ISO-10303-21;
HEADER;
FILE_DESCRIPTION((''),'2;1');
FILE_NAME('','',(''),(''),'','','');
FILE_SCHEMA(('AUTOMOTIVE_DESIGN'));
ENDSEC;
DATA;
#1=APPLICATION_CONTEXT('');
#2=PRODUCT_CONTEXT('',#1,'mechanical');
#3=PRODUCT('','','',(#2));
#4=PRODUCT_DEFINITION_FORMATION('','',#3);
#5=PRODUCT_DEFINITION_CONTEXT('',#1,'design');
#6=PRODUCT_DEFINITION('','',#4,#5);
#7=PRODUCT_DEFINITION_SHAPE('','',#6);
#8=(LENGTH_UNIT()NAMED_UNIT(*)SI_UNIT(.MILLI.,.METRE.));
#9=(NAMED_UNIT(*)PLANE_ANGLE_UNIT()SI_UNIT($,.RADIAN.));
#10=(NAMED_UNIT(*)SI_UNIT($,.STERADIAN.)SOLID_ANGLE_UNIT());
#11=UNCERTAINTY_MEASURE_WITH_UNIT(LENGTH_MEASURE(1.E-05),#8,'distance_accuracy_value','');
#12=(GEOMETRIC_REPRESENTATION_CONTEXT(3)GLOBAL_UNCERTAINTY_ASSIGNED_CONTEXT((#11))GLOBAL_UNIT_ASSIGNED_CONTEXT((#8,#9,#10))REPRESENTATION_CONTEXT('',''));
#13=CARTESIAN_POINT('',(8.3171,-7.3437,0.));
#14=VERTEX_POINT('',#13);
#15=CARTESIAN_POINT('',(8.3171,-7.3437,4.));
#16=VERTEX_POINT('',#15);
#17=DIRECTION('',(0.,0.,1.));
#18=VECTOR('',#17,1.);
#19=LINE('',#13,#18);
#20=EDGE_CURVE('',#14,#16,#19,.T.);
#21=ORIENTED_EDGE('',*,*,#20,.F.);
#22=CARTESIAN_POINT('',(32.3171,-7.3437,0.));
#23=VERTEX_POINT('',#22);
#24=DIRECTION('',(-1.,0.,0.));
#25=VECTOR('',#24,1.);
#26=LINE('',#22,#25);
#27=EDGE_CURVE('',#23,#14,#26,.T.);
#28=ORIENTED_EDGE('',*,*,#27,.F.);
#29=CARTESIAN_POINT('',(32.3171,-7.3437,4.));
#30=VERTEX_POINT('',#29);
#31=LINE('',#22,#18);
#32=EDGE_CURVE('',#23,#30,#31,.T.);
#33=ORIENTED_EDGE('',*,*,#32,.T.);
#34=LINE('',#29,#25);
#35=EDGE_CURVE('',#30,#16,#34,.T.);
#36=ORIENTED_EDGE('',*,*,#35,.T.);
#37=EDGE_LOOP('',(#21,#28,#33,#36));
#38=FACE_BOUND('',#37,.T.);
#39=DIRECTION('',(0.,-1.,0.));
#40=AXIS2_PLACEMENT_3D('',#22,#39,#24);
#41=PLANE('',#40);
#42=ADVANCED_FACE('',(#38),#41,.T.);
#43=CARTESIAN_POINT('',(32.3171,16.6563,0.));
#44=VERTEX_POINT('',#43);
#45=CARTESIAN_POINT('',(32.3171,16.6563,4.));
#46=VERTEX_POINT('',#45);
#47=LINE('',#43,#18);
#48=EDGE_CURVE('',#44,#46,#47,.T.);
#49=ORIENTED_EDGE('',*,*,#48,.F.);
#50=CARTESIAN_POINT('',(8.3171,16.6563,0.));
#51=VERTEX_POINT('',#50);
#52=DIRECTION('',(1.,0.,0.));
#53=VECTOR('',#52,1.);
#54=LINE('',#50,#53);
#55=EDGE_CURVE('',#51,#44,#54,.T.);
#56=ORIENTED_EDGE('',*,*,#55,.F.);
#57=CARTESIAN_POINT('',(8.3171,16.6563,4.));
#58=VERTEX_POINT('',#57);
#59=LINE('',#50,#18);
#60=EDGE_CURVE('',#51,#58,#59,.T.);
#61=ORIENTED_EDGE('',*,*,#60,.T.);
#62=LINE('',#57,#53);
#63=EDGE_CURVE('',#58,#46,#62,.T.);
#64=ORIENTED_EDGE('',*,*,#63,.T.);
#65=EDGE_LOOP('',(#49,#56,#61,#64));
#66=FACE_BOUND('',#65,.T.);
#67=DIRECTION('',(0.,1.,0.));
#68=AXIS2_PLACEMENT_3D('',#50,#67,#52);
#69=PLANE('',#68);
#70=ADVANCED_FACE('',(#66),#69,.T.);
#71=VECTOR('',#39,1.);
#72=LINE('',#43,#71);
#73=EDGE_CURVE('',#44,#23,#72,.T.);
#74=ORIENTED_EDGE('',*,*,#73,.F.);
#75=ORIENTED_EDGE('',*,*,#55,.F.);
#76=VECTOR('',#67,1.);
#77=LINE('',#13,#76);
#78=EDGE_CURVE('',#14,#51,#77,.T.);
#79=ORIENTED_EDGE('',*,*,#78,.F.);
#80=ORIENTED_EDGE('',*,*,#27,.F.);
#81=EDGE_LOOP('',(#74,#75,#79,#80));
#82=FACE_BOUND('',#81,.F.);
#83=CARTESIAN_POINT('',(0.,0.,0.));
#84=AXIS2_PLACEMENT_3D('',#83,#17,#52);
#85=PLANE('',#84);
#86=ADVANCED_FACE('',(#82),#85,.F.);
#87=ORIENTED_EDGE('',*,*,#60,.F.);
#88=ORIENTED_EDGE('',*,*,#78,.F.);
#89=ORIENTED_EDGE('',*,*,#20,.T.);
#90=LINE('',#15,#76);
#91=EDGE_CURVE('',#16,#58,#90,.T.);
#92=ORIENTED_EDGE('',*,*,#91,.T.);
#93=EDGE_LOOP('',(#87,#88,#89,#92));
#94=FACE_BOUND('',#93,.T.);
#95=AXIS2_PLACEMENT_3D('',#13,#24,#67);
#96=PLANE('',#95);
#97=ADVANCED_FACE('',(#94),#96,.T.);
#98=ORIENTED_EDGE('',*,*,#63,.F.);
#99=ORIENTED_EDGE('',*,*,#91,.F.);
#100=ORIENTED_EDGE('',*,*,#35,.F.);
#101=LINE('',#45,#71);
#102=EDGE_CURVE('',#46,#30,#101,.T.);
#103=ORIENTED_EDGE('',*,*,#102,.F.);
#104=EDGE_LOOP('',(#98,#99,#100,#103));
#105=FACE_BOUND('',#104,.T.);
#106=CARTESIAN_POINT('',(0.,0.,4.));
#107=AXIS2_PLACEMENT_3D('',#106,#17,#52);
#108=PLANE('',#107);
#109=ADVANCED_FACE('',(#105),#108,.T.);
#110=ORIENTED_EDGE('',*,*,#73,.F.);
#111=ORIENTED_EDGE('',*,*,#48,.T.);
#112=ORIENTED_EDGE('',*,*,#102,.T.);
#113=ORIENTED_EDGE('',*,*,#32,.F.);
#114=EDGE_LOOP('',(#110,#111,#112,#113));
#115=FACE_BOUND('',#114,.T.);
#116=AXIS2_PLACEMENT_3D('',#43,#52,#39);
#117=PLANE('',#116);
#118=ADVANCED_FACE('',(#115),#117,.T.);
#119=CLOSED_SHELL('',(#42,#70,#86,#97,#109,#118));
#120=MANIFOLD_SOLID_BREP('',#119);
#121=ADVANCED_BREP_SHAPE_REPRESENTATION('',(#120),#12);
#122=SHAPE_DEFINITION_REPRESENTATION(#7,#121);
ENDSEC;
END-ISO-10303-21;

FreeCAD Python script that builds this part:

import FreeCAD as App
import Part
import Sketcher
Q = App.Units.Quantity


def add_polygon(sketch, points):
    """Adds a closed chain of lines whose ends are joined by coincident constraints."""
    first, n = sketch.GeometryCount, len(points)
    for a, b in zip(points, points[1:] + points[:1]):
        sketch.addGeometry(Part.LineSegment(App.Vector(*a, 0), App.Vector(*b, 0)), False)
    for i in range(n):
        sketch.addConstraint(Sketcher.Constraint("Coincident", first + i, 2, first + (i + 1) % n, 1))

doc = App.newDocument("Part")
body = doc.addObject("PartDesign::Body", "Body")

# Sketch on XY plane
sketch1 = doc.addObject("Sketcher::SketchObject", "Sketch")
body.addObject(sketch1)
sketch1.AttachmentSupport = (doc.XY_Plane, [""])
sketch1.MapMode = "FlatFace"
add_polygon(sketch1, [(32, 17), (8, 17), (8, -7), (32, -7)])  # lines 0-3
sketch1.addConstraint(Sketcher.Constraint("Horizontal", 0))
sketch1.addConstraint(Sketcher.Constraint("Vertical", 1))
sketch1.addConstraint(Sketcher.Constraint("Horizontal", 2))
sketch1.addConstraint(Sketcher.Constraint("Vertical", 3))
sketch1.addConstraint(Sketcher.Constraint("Equal", 2, 1))
sketch1.addConstraint(Sketcher.Constraint("DistanceX", 0, 2, 0, 1, Q("24 mm")))
sketch1.addConstraint(Sketcher.Constraint("DistanceX", -1, 1, 0, 2, Q("8.317 mm")))
sketch1.addConstraint(Sketcher.Constraint("DistanceY", -1, 1, 0, 2, Q("16.6563 mm")))
pad1 = doc.addObject("PartDesign::Pad", "Pad")
body.addObject(pad1)
pad1.Profile = sketch1
pad1.Length = 4

doc.recompute()
